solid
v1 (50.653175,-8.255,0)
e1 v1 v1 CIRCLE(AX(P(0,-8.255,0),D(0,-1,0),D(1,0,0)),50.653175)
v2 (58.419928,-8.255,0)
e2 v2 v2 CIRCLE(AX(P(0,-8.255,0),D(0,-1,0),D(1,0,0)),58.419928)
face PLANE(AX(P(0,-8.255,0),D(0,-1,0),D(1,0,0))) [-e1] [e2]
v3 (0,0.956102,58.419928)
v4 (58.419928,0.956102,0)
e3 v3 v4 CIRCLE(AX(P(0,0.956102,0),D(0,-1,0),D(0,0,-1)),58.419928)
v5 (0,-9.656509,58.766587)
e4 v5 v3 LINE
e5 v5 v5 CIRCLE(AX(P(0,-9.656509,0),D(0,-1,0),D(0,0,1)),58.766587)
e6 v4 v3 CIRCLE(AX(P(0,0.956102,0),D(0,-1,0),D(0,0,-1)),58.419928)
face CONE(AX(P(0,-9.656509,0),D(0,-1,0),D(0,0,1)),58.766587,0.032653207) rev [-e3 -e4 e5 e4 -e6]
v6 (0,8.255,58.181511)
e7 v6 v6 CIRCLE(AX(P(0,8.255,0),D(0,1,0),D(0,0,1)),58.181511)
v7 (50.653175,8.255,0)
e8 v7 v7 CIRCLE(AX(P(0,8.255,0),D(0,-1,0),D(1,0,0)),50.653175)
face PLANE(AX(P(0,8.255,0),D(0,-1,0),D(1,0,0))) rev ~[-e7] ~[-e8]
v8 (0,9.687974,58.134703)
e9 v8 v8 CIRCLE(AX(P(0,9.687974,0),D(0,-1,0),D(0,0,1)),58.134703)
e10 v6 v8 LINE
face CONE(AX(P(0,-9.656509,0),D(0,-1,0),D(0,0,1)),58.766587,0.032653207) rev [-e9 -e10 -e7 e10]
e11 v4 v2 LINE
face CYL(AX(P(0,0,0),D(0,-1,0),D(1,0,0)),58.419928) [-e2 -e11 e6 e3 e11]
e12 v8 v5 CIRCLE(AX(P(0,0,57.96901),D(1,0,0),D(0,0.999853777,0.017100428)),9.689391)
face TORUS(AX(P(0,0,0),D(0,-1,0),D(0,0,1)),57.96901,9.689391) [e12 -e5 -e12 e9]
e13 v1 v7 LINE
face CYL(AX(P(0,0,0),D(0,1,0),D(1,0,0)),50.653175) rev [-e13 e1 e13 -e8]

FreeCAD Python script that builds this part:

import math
import FreeCAD as App
import Part
import Sketcher
from FreeCAD import Vector
Q = App.Units.Quantity

doc = App.newDocument("Part")
body = doc.addObject("PartDesign::Body", "Body")

sketch1 = body.newObject("Sketcher::SketchObject", "Sketch")
sketch1.AttachmentSupport = (doc.getObject("YZ_Plane"), [""])
sketch1.MapMode = "FlatFace"
sketch1.addGeometry([
    Part.LineSegment(Vector(-9.656509, 58.766587, 0), Vector(9.687974, 58.134703, 0)),
    Part.ArcOfCircle(Part.Circle(Vector(0, 57.96901, 0), Vector(0, 0, 1), 9.689391), math.radians(0.97983), math.radians(175.278388)),
], False)
sketch1.addConstraint([
    Sketcher.Constraint("Coincident", 0, 1, 1, 2),
    Sketcher.Constraint("Coincident", 1, 1, 0, 2),
    Sketcher.Constraint("PointOnObject", 1, 3, -2),
    Sketcher.Constraint("Distance", 0, Q("0.762 in")),
    Sketcher.Constraint("Radius", 1, Q("9.689391 mm")),
    Sketcher.Constraint("DistanceY", -1, 1, 1, 3, Q("57.96901 mm")),
    Sketcher.Constraint("DistanceX", 0, 1, -1, 1, Q("9.656509 mm")),
])
revolution = body.newObject("PartDesign::Revolution", "Revolution")
revolution.Profile = sketch1
revolution.ReferenceAxis = (sketch1, ["H_Axis"])
revolution.Angle = 360

sketch2 = body.newObject("Sketcher::SketchObject", "Sketch001")
sketch2.AttachmentSupport = (doc.getObject("XZ_Plane"), [""])
sketch2.MapMode = "FlatFace"
sketch2.addGeometry([
    Part.Circle(Vector(0, 0, 0), Vector(0, 0, 1), 58.419928),
    Part.Circle(Vector(0, 0, 0), Vector(0, 0, 1), 50.653175),
], False)
sketch2.addConstraint([
    Sketcher.Constraint("Coincident", 0, 3, -1, 1),
    Sketcher.Constraint("Coincident", 1, 3, -1, 1),
    Sketcher.Constraint("Diameter", 1, Q("101.30635 mm")),
    Sketcher.Constraint("Diameter", 0, Q("116.839856 mm")),
])
pad1 = body.newObject("PartDesign::Pad", "Pad")
pad1.Profile = sketch2
pad1.Length = Q("0.65 in")
pad1.Midplane = True

doc.recompute()
